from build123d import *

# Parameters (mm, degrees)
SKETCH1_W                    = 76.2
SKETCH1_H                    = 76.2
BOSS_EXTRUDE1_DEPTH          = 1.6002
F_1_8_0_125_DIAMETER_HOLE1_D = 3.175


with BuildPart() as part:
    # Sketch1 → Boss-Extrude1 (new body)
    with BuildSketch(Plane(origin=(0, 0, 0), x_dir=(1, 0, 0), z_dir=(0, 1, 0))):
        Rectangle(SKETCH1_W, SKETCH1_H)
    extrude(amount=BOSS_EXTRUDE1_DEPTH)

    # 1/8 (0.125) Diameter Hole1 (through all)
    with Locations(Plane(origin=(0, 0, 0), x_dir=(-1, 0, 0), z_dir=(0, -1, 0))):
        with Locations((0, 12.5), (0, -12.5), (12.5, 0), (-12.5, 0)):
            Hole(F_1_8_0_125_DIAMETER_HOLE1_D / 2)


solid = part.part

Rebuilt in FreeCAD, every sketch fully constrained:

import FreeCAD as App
import Part
import Sketcher
Q = App.Units.Quantity

doc = App.newDocument("Part")
body = doc.addObject("PartDesign::Body", "Body")

sketch1 = body.newObject("Sketcher::SketchObject", "Sketch")
sketch1.AttachmentSupport = (doc.getObject("XZ_Plane"), [""])
sketch1.MapMode = "FlatFace"
sketch1.addGeometry([
    Part.LineSegment(App.Vector(-38, -38, 0), App.Vector(-38, 38, 0)),
    Part.LineSegment(App.Vector(-38, 38, 0), App.Vector(38, 38, 0)),
    Part.LineSegment(App.Vector(38, 38, 0), App.Vector(38, -38, 0)),
    Part.LineSegment(App.Vector(38, -38, 0), App.Vector(-38, -38, 0)),
], False)
sketch1.addConstraint([
    Sketcher.Constraint("Coincident", 0, 2, 1, 1),
    Sketcher.Constraint("Coincident", 1, 2, 2, 1),
    Sketcher.Constraint("Coincident", 2, 2, 3, 1),
    Sketcher.Constraint("Coincident", 3, 2, 0, 1),
    Sketcher.Constraint("Vertical", 0),
    Sketcher.Constraint("Horizontal", 1),
    Sketcher.Constraint("Vertical", 2),
    Sketcher.Constraint("Horizontal", 3),
    Sketcher.Constraint("Symmetric", 0, 2, 2, 2, -1, 1),
    Sketcher.Constraint("Equal", 3, 0),
    Sketcher.Constraint("DistanceX", 1, 1, 1, 2, Q("3 in")),
])
pad1 = body.newObject("PartDesign::Pad", "Pad")
pad1.Profile = sketch1
pad1.Length = Q("0.063 in")
pad1.Reversed = True

sketch2 = body.newObject("Sketcher::SketchObject", "Sketch001")
sketch2.AttachmentSupport = (doc.getObject("XZ_Plane"), [""])
sketch2.MapMode = "FlatFace"
sketch2.addGeometry([
    Part.Circle(App.Vector(0, -12.5, 0), App.Vector(0, 0, 1), 1.6),
    Part.Circle(App.Vector(0, 12.5, 0), App.Vector(0, 0, 1), 1.6),
    Part.Circle(App.Vector(-12.5, 0, 0), App.Vector(0, 0, 1), 1.6),
    Part.Circle(App.Vector(12.5, 0, 0), App.Vector(0, 0, 1), 1.6),
], False)
sketch2.addConstraint([
    Sketcher.Constraint("Equal", 0, 1),
    Sketcher.Constraint("Equal", 1, 2),
    Sketcher.Constraint("Equal", 2, 3),
    Sketcher.Constraint("Symmetric", 0, 3, 1, 3, -1, 1),
    Sketcher.Constraint("Symmetric", 2, 3, 3, 3, -1, 1),
    Sketcher.Constraint("PointOnObject", 0, 3, -2),
    Sketcher.Constraint("PointOnObject", 2, 3, -1),
    Sketcher.Constraint("Diameter", 0, Q("0.125 in")),
    Sketcher.Constraint("DistanceY", 0, 3, -1, 1, 12.5),
    Sketcher.Constraint("DistanceX", 2, 3, -1, 1, 12.5),
])
doc.recompute()
hole = body.newObject("PartDesign::Hole", "Hole")
hole.Profile = sketch2
hole.ThreadType = "None"
hole.Diameter = Q("0.125 in")
hole.DepthType = "ThroughAll"

doc.recompute()
